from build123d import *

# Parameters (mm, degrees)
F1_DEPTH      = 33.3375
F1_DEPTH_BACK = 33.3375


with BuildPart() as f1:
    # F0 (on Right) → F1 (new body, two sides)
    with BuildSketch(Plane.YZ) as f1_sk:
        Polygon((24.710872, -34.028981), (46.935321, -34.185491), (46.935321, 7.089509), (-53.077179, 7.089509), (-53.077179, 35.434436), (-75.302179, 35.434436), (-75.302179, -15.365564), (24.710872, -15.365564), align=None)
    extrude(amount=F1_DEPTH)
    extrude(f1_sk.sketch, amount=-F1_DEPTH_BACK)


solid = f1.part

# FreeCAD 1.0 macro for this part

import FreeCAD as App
import Part
import Sketcher
Q = App.Units.Quantity

doc = App.newDocument("Part")
body = doc.addObject("PartDesign::Body", "Body")

# Sketch on YZ plane
sketch1 = body.newObject("Sketcher::SketchObject", "Sketch")
sketch1.AttachmentSupport = (doc.getObject("YZ_Plane"), [""])
sketch1.MapMode = "FlatFace"
sketch1.addGeometry([
    Part.LineSegment(App.Vector(24.710872, -34.028981, 0), App.Vector(46.935321, -34.185491, 0)),  # 0
    Part.LineSegment(App.Vector(46.935321, -34.185491, 0), App.Vector(46.935321, 7.089509, 0)),  # 1
    Part.LineSegment(App.Vector(46.935321, 7.089509, 0), App.Vector(-53.077179, 7.089509, 0)),  # 2
    Part.LineSegment(App.Vector(-53.077179, 7.089509, 0), App.Vector(-53.077179, 35.434436, 0)),  # 3
    Part.LineSegment(App.Vector(-53.077179, 35.434436, 0), App.Vector(-75.302179, 35.434436, 0)),  # 4
    Part.LineSegment(App.Vector(-75.302179, 35.434436, 0), App.Vector(-75.302179, -15.365564, 0)),  # 5
    Part.LineSegment(App.Vector(-75.302179, -15.365564, 0), App.Vector(24.710872, -15.365564, 0)),  # 6
    Part.LineSegment(App.Vector(24.710872, -15.365564, 0), App.Vector(24.710872, -34.028981, 0)),  # 7
], False)
sketch1.addConstraint([
    Sketcher.Constraint("Coincident", 0, 2, 1, 1),
    Sketcher.Constraint("Coincident", 1, 2, 2, 1),
    Sketcher.Constraint("Coincident", 2, 2, 3, 1),
    Sketcher.Constraint("Coincident", 3, 2, 4, 1),
    Sketcher.Constraint("Coincident", 4, 2, 5, 1),
    Sketcher.Constraint("Coincident", 5, 2, 6, 1),
    Sketcher.Constraint("Coincident", 6, 2, 7, 1),
    Sketcher.Constraint("Coincident", 7, 2, 0, 1),
    Sketcher.Constraint("Vertical", 1),
    Sketcher.Constraint("Horizontal", 2),
    Sketcher.Constraint("Vertical", 3),
    Sketcher.Constraint("Horizontal", 4),
    Sketcher.Constraint("Vertical", 5),
    Sketcher.Constraint("Horizontal", 6),
    Sketcher.Constraint("Vertical", 7),
    Sketcher.Constraint("DistanceY", 5, 2, 5, 1, Q("2 in")),
    Sketcher.Constraint("DistanceX", 2, 2, 2, 1, Q("3.9375 in")),
    Sketcher.Constraint("DistanceX", 4, 2, 4, 1, Q("0.875 in")),
    Sketcher.Constraint("DistanceY", 1, 1, 1, 2, Q("1.625 in")),
    Sketcher.Constraint("Distance", 0, Q("0.875 in")),
    Sketcher.Constraint("DistanceX", 6, 1, 6, 2, 100.013051),
    Sketcher.Constraint("DistanceY", 3, 1, 3, 2, 28.344927),
    Sketcher.Constraint("DistanceX", -1, 1, 0, 2, 46.935321),
    Sketcher.Constraint("DistanceY", 0, 2, -1, 1, 34.185491),
])
pad1 = body.newObject("PartDesign::Pad", "Pad")
pad1.Profile = sketch1
pad1.Type = "TwoLengths"
pad1.Length = Q("1.3125 in")
pad1.Length2 = Q("1.3125 in")

doc.recompute()
